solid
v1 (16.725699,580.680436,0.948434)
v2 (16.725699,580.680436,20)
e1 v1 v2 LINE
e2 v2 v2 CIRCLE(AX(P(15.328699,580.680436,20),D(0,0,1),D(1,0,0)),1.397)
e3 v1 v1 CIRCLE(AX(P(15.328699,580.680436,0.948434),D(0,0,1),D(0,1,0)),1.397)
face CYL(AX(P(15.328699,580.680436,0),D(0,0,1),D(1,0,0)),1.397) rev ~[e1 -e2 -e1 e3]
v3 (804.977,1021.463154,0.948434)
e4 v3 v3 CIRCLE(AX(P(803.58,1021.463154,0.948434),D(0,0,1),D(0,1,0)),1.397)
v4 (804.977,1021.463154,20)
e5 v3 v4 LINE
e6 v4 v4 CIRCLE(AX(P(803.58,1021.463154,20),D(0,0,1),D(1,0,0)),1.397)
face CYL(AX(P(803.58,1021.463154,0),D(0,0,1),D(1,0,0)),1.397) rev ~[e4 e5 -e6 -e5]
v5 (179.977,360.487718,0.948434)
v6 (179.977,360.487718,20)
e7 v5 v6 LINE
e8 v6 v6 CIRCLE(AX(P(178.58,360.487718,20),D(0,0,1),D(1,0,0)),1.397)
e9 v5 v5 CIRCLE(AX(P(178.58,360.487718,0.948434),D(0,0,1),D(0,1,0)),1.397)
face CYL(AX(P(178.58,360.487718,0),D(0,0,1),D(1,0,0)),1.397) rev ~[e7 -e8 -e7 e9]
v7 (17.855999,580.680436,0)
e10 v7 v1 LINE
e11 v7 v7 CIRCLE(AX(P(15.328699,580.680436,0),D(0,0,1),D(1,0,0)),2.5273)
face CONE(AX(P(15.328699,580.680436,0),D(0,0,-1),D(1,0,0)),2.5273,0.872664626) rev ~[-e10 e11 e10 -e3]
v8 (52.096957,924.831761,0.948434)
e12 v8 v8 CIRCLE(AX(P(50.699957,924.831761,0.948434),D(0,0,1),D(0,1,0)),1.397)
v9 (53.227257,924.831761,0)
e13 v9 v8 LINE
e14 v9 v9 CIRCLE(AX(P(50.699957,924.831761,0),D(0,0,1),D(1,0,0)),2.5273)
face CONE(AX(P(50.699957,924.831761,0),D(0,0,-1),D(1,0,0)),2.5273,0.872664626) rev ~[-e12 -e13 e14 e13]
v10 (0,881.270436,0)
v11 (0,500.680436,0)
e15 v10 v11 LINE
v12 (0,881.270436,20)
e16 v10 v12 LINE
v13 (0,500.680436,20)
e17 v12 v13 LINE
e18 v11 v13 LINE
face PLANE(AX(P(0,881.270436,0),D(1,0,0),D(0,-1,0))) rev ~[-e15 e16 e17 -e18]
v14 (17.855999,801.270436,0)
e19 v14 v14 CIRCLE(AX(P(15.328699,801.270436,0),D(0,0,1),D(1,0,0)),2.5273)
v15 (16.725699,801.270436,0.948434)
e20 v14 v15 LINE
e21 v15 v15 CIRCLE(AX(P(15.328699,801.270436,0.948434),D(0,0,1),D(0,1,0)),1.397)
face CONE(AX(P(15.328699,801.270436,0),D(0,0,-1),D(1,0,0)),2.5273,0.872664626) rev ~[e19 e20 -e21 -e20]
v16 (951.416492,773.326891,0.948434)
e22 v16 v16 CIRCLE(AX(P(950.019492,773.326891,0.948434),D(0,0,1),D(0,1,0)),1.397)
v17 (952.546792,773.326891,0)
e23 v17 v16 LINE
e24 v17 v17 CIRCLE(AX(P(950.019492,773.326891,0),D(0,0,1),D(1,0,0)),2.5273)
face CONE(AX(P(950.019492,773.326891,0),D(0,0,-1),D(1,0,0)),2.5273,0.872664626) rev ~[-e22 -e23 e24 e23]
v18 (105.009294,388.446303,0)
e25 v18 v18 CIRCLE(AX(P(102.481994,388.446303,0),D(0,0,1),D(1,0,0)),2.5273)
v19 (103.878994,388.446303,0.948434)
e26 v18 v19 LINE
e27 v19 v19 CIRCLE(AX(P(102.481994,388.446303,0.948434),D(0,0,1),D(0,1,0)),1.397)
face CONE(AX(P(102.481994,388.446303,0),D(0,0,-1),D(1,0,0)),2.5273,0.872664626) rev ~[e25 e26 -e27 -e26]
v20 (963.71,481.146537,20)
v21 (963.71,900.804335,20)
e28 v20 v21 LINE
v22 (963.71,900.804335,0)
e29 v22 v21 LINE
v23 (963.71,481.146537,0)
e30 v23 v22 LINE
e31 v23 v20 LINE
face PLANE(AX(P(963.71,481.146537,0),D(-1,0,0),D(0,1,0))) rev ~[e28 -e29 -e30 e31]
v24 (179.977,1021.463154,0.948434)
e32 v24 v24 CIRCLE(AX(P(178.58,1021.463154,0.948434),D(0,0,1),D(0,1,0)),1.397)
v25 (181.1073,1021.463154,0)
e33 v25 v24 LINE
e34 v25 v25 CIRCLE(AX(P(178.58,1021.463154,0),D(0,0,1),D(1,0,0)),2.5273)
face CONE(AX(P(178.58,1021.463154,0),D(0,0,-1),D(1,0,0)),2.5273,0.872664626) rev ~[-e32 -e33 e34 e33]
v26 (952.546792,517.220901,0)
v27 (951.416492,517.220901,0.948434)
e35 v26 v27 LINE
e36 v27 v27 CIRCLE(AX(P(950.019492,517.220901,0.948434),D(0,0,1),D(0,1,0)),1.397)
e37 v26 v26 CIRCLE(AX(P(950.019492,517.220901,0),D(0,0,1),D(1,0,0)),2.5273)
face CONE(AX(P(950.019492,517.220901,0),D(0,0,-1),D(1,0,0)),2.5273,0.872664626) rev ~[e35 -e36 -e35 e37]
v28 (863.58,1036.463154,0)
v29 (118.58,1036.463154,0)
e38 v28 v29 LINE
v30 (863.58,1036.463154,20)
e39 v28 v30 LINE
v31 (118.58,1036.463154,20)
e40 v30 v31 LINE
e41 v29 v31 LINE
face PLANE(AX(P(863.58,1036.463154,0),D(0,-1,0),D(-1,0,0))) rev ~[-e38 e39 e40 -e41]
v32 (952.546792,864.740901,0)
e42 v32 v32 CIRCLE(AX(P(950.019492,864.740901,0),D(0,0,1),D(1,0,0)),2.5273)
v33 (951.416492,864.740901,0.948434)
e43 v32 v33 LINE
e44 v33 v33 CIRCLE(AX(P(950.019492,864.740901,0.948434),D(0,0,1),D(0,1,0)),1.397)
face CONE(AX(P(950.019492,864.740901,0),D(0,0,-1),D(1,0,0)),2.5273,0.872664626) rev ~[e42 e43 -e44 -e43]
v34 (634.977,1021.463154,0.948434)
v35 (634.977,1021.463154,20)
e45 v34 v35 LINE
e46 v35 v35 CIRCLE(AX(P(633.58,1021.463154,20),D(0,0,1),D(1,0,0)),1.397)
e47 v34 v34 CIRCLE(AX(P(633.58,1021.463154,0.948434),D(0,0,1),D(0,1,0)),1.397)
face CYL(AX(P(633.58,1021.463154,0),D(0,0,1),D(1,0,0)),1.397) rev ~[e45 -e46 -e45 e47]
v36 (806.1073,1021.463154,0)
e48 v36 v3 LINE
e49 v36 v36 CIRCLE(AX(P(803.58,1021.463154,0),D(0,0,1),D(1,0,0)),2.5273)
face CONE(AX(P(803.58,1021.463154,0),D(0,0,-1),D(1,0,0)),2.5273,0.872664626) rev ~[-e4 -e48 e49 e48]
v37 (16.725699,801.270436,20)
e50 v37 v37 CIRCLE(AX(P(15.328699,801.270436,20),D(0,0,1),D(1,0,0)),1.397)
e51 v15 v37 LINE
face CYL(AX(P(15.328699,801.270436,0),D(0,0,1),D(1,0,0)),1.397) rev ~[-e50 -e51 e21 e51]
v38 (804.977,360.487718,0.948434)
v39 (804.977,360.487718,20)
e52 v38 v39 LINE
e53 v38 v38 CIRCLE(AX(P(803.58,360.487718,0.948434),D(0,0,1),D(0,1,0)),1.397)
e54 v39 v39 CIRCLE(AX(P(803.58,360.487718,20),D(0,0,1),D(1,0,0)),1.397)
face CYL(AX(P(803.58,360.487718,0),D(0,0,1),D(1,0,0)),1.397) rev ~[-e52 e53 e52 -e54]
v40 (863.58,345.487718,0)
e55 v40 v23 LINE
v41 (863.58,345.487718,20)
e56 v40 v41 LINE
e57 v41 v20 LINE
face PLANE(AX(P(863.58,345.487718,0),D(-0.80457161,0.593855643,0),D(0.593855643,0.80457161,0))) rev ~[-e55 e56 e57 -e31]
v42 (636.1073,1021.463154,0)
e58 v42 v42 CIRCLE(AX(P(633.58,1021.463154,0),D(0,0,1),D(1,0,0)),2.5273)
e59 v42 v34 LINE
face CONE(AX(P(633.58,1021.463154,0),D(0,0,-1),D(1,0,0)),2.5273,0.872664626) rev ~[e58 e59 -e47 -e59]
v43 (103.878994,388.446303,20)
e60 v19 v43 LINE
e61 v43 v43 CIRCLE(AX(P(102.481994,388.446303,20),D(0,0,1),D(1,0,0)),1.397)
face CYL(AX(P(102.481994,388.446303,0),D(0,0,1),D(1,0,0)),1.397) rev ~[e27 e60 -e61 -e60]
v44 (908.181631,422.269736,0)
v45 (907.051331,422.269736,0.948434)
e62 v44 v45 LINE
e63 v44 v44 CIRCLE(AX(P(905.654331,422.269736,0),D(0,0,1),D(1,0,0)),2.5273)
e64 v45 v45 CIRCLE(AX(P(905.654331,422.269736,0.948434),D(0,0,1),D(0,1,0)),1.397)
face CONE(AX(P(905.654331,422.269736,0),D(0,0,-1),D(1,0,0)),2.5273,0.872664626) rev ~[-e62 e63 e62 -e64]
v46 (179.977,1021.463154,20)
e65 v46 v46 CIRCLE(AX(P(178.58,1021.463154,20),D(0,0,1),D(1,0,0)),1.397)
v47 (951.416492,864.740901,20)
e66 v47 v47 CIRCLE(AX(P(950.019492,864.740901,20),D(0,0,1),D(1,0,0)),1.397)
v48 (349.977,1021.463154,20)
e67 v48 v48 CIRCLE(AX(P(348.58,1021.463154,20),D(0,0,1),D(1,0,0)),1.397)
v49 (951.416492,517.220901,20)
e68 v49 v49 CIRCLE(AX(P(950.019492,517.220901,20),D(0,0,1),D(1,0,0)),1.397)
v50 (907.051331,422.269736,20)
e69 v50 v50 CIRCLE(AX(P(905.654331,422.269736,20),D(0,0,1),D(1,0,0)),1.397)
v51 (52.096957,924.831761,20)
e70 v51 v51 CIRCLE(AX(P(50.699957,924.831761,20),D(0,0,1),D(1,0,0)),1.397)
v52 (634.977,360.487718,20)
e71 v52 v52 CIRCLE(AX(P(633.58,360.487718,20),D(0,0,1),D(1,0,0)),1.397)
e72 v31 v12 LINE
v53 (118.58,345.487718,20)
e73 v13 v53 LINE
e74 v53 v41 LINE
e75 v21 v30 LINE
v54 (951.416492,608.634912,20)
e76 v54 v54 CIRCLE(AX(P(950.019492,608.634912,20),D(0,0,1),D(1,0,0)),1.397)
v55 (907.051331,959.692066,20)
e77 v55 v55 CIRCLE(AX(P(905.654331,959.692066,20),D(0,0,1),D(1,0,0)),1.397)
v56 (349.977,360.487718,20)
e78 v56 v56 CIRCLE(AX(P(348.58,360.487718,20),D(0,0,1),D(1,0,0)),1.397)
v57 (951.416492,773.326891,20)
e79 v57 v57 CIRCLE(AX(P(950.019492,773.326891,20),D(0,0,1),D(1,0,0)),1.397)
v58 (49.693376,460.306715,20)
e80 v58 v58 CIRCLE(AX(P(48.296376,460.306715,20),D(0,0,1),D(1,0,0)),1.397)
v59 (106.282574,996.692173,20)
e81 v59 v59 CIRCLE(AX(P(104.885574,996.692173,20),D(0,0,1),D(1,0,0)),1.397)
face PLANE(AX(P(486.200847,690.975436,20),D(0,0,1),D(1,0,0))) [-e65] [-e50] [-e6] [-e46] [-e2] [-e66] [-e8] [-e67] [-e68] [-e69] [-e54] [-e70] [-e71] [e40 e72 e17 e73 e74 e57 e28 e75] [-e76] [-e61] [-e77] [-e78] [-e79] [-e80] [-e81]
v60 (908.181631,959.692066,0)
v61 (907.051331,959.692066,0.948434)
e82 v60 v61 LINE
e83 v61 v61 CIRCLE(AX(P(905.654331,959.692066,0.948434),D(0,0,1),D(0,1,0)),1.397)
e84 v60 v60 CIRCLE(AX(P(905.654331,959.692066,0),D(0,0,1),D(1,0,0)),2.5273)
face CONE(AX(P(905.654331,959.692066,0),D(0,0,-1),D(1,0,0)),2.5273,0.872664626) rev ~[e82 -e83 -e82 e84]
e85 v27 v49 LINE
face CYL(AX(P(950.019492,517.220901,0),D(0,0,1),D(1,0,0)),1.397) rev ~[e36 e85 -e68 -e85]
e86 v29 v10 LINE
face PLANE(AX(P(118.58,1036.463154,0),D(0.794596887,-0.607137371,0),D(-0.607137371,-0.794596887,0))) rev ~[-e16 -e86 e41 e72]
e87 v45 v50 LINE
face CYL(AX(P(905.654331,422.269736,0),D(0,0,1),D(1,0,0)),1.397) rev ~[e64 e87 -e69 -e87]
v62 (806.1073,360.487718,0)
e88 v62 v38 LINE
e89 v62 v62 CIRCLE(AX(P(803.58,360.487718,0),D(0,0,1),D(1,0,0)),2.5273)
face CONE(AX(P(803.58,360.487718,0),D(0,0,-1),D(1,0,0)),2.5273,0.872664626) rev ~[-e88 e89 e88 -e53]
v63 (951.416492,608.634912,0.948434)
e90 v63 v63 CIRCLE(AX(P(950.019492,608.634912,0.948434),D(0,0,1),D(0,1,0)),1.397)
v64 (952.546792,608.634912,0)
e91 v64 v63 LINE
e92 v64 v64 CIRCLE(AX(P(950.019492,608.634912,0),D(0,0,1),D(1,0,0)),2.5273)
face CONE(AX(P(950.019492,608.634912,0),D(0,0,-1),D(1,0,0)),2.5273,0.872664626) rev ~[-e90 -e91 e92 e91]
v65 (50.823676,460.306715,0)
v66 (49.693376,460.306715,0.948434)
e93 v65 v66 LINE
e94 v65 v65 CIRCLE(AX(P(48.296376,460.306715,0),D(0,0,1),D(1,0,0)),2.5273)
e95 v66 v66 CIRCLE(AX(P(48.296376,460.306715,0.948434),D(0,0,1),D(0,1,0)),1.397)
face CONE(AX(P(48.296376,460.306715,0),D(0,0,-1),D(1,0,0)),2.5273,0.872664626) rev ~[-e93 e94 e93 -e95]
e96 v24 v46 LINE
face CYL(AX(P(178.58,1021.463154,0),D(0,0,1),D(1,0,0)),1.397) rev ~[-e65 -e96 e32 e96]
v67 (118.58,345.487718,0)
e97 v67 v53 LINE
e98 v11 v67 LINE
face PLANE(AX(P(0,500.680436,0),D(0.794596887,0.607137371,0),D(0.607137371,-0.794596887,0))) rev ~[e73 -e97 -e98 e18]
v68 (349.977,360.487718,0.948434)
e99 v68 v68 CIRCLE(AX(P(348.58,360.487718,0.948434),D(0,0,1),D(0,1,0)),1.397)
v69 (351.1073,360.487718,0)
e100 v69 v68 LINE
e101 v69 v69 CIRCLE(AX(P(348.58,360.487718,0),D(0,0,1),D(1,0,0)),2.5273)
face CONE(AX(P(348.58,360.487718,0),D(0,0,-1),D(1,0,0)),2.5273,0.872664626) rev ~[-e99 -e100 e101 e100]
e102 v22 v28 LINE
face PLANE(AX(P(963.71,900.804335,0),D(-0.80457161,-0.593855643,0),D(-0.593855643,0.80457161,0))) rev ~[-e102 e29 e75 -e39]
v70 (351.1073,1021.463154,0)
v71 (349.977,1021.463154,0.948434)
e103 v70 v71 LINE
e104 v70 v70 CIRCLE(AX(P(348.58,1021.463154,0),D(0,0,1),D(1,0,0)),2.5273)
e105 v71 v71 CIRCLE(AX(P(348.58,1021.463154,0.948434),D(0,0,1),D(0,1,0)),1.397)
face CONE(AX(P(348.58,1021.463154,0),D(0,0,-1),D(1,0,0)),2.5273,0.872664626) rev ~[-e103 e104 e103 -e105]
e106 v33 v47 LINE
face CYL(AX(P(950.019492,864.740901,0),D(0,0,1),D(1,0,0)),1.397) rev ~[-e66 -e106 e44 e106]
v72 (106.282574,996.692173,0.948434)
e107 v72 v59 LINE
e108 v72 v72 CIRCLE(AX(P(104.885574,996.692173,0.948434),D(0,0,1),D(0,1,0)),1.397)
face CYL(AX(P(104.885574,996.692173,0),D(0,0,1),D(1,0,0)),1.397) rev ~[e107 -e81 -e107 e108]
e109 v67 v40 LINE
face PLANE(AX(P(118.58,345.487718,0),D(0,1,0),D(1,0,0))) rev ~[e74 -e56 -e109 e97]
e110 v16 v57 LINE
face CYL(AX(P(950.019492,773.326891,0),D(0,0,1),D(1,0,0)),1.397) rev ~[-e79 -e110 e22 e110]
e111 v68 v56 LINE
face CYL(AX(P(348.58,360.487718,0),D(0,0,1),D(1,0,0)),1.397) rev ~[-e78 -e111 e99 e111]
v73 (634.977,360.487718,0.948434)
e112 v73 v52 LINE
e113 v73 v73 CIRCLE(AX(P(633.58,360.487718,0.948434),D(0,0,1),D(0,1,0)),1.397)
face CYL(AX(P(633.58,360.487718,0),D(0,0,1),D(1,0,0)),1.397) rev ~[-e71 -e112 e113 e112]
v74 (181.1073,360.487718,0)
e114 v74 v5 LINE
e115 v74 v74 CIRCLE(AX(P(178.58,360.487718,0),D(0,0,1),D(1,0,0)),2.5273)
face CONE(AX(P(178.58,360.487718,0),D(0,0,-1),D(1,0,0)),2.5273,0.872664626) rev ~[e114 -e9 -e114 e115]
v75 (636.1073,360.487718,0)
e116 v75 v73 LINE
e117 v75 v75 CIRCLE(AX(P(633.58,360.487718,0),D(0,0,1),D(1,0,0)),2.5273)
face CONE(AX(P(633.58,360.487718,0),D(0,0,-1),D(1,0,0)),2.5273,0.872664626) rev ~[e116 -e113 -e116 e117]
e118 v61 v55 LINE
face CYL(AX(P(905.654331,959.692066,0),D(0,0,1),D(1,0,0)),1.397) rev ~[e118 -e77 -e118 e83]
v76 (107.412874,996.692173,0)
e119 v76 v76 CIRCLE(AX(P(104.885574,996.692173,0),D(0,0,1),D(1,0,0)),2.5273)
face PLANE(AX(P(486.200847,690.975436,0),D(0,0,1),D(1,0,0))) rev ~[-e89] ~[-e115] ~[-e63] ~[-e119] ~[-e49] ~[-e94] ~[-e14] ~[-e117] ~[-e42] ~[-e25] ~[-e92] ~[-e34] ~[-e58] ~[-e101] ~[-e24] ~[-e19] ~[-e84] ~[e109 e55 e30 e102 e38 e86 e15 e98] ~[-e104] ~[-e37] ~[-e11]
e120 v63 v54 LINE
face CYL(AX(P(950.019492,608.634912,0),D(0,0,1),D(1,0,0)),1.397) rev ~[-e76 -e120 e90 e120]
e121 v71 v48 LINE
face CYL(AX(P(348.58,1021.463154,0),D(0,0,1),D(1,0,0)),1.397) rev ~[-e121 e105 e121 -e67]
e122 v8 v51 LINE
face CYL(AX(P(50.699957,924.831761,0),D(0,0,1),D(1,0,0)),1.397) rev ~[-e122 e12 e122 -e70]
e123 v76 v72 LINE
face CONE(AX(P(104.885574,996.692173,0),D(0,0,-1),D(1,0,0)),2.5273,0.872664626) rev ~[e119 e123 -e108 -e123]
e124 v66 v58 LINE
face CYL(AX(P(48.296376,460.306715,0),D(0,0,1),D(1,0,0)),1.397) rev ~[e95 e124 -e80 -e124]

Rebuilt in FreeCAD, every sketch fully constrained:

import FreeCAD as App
import Part
import Sketcher
from FreeCAD import Vector


def add_polygon(sketch, points):
    """Adds a closed chain of lines whose ends are joined by coincident constraints."""
    first, n = sketch.GeometryCount, len(points)
    for a, b in zip(points, points[1:] + points[:1]):
        sketch.addGeometry(Part.LineSegment(App.Vector(*a, 0), App.Vector(*b, 0)), False)
    for i in range(n):
        sketch.addConstraint(Sketcher.Constraint("Coincident", first + i, 2, first + (i + 1) % n, 1))

doc = App.newDocument("Part")
params = doc.addObject("Spreadsheet::Sheet", "Params")
for row, (alias, value) in enumerate([
    ("sketch1_width", "745 mm"),
    ("sketch1_height", "380.59 mm"),
    ("sketch1_length", "195.31 mm"),
    ("sketch1_length2", "168.61 mm"),
    ("pad1_length", "20 mm"),
    ("hole_diameter", "2.794 mm"),
    ("hole_depth", "20 mm"),
    ("hole_csink_diameter", "5.0546 mm"),
], start=1):
    params.set(f"A{row}", alias)
    params.set(f"B{row}", "=" + value)
    params.setAlias(f"B{row}", alias)

body = doc.addObject("PartDesign::Body", "Body")

# Sketch on XY plane
sketch1 = body.newObject("Sketcher::SketchObject", "Sketch")
sketch1.AttachmentSupport = (doc.getObject("XY_Plane"), [""])
sketch1.MapMode = "FlatFace"
add_polygon(sketch1, [(0, 501), (119, 345), (864, 345), (964, 481), (964, 901), (864, 1036), (119, 1036), (0, 881)])  # lines 0-7
sketch1.addConstraint([
    Sketcher.Constraint("Horizontal", 1),
    Sketcher.Constraint("Vertical", 3),
    Sketcher.Constraint("Horizontal", 5),
    Sketcher.Constraint("Vertical", 7),
    Sketcher.Constraint("PointOnObject", 6, 2, -2),
    Sketcher.Constraint("Vertical", 1, 2, 4, 2),
    Sketcher.Constraint("Vertical", 0, 2, 5, 2),
    Sketcher.Constraint("Equal", 2, 4),
    Sketcher.Constraint("Equal", 0, 6),
    Sketcher.Constraint("DistanceX", 1, 1, 1, 2, 745.0),
    Sketcher.Constraint("DistanceY", 7, 2, 7, 1, 380.59),
    Sketcher.Constraint("Distance", 0, 195.31),
    Sketcher.Constraint("Distance", 2, 168.61),
    Sketcher.Constraint("DistanceX", -1, 1, 0, 2, 118.58),
    Sketcher.Constraint("DistanceX", -1, 1, 2, 2, 963.71),
    Sketcher.Constraint("DistanceY", -1, 1, 0, 2, 345.487718),
])
sketch1.setExpression("Constraints[17]", "Params.sketch1_width")
sketch1.setExpression("Constraints[18]", "Params.sketch1_height")
sketch1.setExpression("Constraints[19]", "Params.sketch1_length")
sketch1.setExpression("Constraints[20]", "Params.sketch1_length2")
pad1 = body.newObject("PartDesign::Pad", "Pad")
pad1.Profile = sketch1
pad1.setExpression("Length", "Params.pad1_length")

# Sketch on XY plane
sketch2 = body.newObject("Sketcher::SketchObject", "Sketch001")
sketch2.AttachmentSupport = (doc.getObject("XY_Plane"), [""])
sketch2.MapMode = "FlatFace"
sketch2.addGeometry([
    Part.Circle(Vector(950, 864.7, 0), Vector(0, 0, 1), 1.4),  # 0
    Part.Circle(Vector(950, 773.3, 0), Vector(0, 0, 1), 1.4),  # 1
    Part.Circle(Vector(950, 608.6, 0), Vector(0, 0, 1), 1.4),  # 2
    Part.Circle(Vector(950, 517.2, 0), Vector(0, 0, 1), 1.4),  # 3
    Part.Circle(Vector(905.7, 422.3, 0), Vector(0, 0, 1), 1.4),  # 4
    Part.Circle(Vector(803.6, 360.5, 0), Vector(0, 0, 1), 1.4),  # 5
    Part.Circle(Vector(633.6, 360.5, 0), Vector(0, 0, 1), 1.4),  # 6
    Part.Circle(Vector(348.6, 360.5, 0), Vector(0, 0, 1), 1.4),  # 7
    Part.Circle(Vector(178.6, 360.5, 0), Vector(0, 0, 1), 1.4),  # 8
    Part.Circle(Vector(102.5, 388.4, 0), Vector(0, 0, 1), 1.4),  # 9
    Part.Circle(Vector(48.3, 460.3, 0), Vector(0, 0, 1), 1.4),  # 10
    Part.Circle(Vector(15.3, 580.7, 0), Vector(0, 0, 1), 1.4),  # 11
    Part.Circle(Vector(15.3, 801.3, 0), Vector(0, 0, 1), 1.4),  # 12
    Part.Circle(Vector(50.7, 924.8, 0), Vector(0, 0, 1), 1.4),  # 13
    Part.Circle(Vector(104.9, 996.7, 0), Vector(0, 0, 1), 1.4),  # 14
    Part.Circle(Vector(178.6, 1021.5, 0), Vector(0, 0, 1), 1.4),  # 15
    Part.Circle(Vector(348.6, 1021.5, 0), Vector(0, 0, 1), 1.4),  # 16
    Part.Circle(Vector(633.6, 1021.5, 0), Vector(0, 0, 1), 1.4),  # 17
    Part.Circle(Vector(803.6, 1021.5, 0), Vector(0, 0, 1), 1.4),  # 18
    Part.Circle(Vector(905.7, 959.7, 0), Vector(0, 0, 1), 1.4),  # 19
], False)
sketch2.addConstraint([
    Sketcher.Constraint("Equal", 0, 1),
    Sketcher.Constraint("Equal", 1, 2),
    Sketcher.Constraint("Equal", 2, 3),
    Sketcher.Constraint("Equal", 3, 4),
    Sketcher.Constraint("Equal", 4, 5),
    Sketcher.Constraint("Equal", 5, 6),
    Sketcher.Constraint("Equal", 6, 7),
    Sketcher.Constraint("Equal", 7, 8),
    Sketcher.Constraint("Equal", 8, 9),
    Sketcher.Constraint("Equal", 9, 10),
    Sketcher.Constraint("Equal", 10, 11),
    Sketcher.Constraint("Equal", 11, 12),
    Sketcher.Constraint("Equal", 12, 13),
    Sketcher.Constraint("Equal", 13, 14),
    Sketcher.Constraint("Equal", 14, 15),
    Sketcher.Constraint("Equal", 15, 16),
    Sketcher.Constraint("Equal", 16, 17),
    Sketcher.Constraint("Equal", 17, 18),
    Sketcher.Constraint("Equal", 18, 19),
    Sketcher.Constraint("Horizontal", 5, 3, 6, 3),
    Sketcher.Constraint("Horizontal", 6, 3, 7, 3),
    Sketcher.Constraint("Horizontal", 7, 3, 8, 3),
    Sketcher.Constraint("Horizontal", 15, 3, 16, 3),
    Sketcher.Constraint("Horizontal", 16, 3, 17, 3),
    Sketcher.Constraint("Horizontal", 17, 3, 18, 3),
    Sketcher.Constraint("Vertical", 0, 3, 1, 3),
    Sketcher.Constraint("Vertical", 1, 3, 2, 3),
    Sketcher.Constraint("Vertical", 2, 3, 3, 3),
    Sketcher.Constraint("Vertical", 11, 3, 12, 3),
    Sketcher.Constraint("Vertical", 8, 3, 15, 3),
    Sketcher.Constraint("Vertical", 7, 3, 16, 3),
    Sketcher.Constraint("Vertical", 6, 3, 17, 3),
    Sketcher.Constraint("Vertical", 5, 3, 18, 3),
    Sketcher.Constraint("Vertical", 4, 3, 19, 3),
    Sketcher.Constraint("Diameter", 0, 2.794),
    Sketcher.Constraint("DistanceX", 6, 3, 5, 3, 170.0),
    Sketcher.Constraint("DistanceX", 7, 3, 6, 3, 285.0),
    Sketcher.Constraint("DistanceX", 8, 3, 7, 3, 170.0),
    Sketcher.Constraint("DistanceX", -1, 1, 5, 3, 803.58),
    Sketcher.Constraint("DistanceY", 3, 3, 0, 3, 347.52),
    Sketcher.Constraint("DistanceY", 11, 3, 12, 3, 220.59),
    Sketcher.Constraint("DistanceY", -1, 1, 0, 3, 864.740901),
    Sketcher.Constraint("DistanceX", -1, 1, 11, 3, 15.328699),
    Sketcher.Constraint("DistanceX", 10, 3, 14, 3, 56.589198),
    Sketcher.Constraint("DistanceX", -1, 1, 0, 3, 950.019492),
    Sketcher.Constraint("DistanceY", -1, 1, 1, 3, 773.326891),
    Sketcher.Constraint("DistanceX", -1, 1, 4, 3, 905.654331),
    Sketcher.Constraint("DistanceY", -1, 1, 13, 3, 924.831761),
    Sketcher.Constraint("DistanceY", 2, 3, 1, 3, 164.691978),
    Sketcher.Constraint("DistanceY", 5, 3, 4, 3, 61.782019),
    Sketcher.Constraint("DistanceY", 10, 3, 11, 3, 120.373721),
    Sketcher.Constraint("DistanceX", 10, 3, 13, 3, 2.403581),
    Sketcher.Constraint("DistanceX", 9, 3, 14, 3, 2.403581),
    Sketcher.Constraint("DistanceY", 9, 3, 14, 3, 608.24587),
    Sketcher.Constraint("DistanceY", 14, 3, 15, 3, 24.770981),
    Sketcher.Constraint("DistanceY", 10, 3, 15, 3, 561.156438),
    Sketcher.Constraint("DistanceY", 2, 3, 17, 3, 412.828241),
    Sketcher.Constraint("DistanceY", -1, 1, 4, 3, 422.269736),
    Sketcher.Constraint("DistanceX", -1, 1, 9, 3, 102.481994),
    Sketcher.Constraint("DistanceY", -1, 1, 19, 3, 959.692066),
])
doc.recompute()
hole = body.newObject("PartDesign::Hole", "Hole")
hole.Profile = sketch2
hole.ThreadType = "None"
hole.setExpression("Diameter", "Params.hole_diameter")
hole.DepthType = "Dimension"
hole.setExpression("Depth", "Params.hole_depth")
hole.DrillPoint = "Flat"
hole.HoleCutType = "Countersink"
hole.setExpression("HoleCutDiameter", "Params.hole_csink_diameter")
hole.HoleCutCountersinkAngle = 100
hole.Reversed = True

doc.recompute()
